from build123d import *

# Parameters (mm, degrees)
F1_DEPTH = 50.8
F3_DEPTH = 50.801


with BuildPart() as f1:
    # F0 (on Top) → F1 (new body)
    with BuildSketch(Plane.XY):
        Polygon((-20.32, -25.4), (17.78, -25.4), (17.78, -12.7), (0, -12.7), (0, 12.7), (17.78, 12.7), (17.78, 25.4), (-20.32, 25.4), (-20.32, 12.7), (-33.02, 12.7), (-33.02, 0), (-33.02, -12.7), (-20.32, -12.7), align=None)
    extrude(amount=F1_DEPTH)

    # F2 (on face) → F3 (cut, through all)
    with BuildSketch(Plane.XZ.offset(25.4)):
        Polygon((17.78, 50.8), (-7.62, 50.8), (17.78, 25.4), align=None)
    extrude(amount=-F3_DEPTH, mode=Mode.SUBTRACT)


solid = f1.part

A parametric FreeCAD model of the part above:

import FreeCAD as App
import Part
import Sketcher
from FreeCAD import Vector
Q = App.Units.Quantity


def add_polygon(sketch, points):
    """Adds a closed chain of lines whose ends are joined by coincident constraints."""
    first, n = sketch.GeometryCount, len(points)
    for a, b in zip(points, points[1:] + points[:1]):
        sketch.addGeometry(Part.LineSegment(App.Vector(*a, 0), App.Vector(*b, 0)), False)
    for i in range(n):
        sketch.addConstraint(Sketcher.Constraint("Coincident", first + i, 2, first + (i + 1) % n, 1))

doc = App.newDocument("Part")
params = doc.addObject("Spreadsheet::Sheet", "Params")
for row, (alias, value) in enumerate([
    ("sketch1_height", "1 in"),
    ("sketch1_width", "1.5 in"),
    ("sketch1_width2", "0.7 in"),
    ("sketch1_width3", "0.5 in"),
    ("pad1_length", "2 in"),
    ("sketch2_width", "1 in"),
], start=1):
    params.set(f"A{row}", alias)
    params.set(f"B{row}", "=" + value)
    params.setAlias(f"B{row}", alias)

body = doc.addObject("PartDesign::Body", "Body")

# Sketch on XY plane
sketch1 = body.newObject("Sketcher::SketchObject", "Sketch")
sketch1.AttachmentSupport = (doc.getObject("XY_Plane"), [""])
sketch1.MapMode = "FlatFace"
add_polygon(sketch1, [(-20, -25), (18, -25), (18, -13), (0, -13), (0, 13), (18, 13), (18, 25), (-20, 25), (-20, 13), (-33, 13), (-33, -13), (-20, -13)])  # lines 0-11
sketch1.addConstraint([
    Sketcher.Constraint("Horizontal", 0),
    Sketcher.Constraint("Vertical", 1),
    Sketcher.Constraint("Horizontal", 2),
    Sketcher.Constraint("Vertical", 3),
    Sketcher.Constraint("Horizontal", 4),
    Sketcher.Constraint("Vertical", 5),
    Sketcher.Constraint("Horizontal", 6),
    Sketcher.Constraint("Vertical", 7),
    Sketcher.Constraint("Horizontal", 8),
    Sketcher.Constraint("Vertical", 9),
    Sketcher.Constraint("Horizontal", 10),
    Sketcher.Constraint("Vertical", 11),
    Sketcher.Constraint("Symmetric", 2, 2, 3, 2, -1, 1),
    Sketcher.Constraint("Symmetric", 0, 2, 5, 2, -1),
    Sketcher.Constraint("Symmetric", 7, 2, 10, 2, -1),
    Sketcher.Constraint("Horizontal", 4, 2, 7, 2),
    Sketcher.Constraint("Equal", 10, 1),
    Sketcher.Constraint("DistanceY", 3, 1, 3, 2, Q("1 in")),
    Sketcher.Constraint("DistanceX", 0, 1, 0, 2, Q("1.5 in")),
    Sketcher.Constraint("DistanceX", 2, 2, 2, 1, Q("0.7 in")),
    Sketcher.Constraint("DistanceX", 8, 2, 8, 1, Q("0.5 in")),
])
sketch1.setExpression("Constraints[29]", "Params.sketch1_height")
sketch1.setExpression("Constraints[30]", "Params.sketch1_width")
sketch1.setExpression("Constraints[31]", "Params.sketch1_width2")
sketch1.setExpression("Constraints[32]", "Params.sketch1_width3")
pad1 = body.newObject("PartDesign::Pad", "Pad")
pad1.Profile = sketch1
pad1.setExpression("Length", "Params.pad1_length")

# Sketch on XZ plane
sketch2 = body.newObject("Sketcher::SketchObject", "Sketch001")
sketch2.AttachmentSupport = (doc.getObject("XZ_Plane"), [""])
sketch2.MapMode = "FlatFace"
sketch2.AttachmentOffset = App.Placement(Vector(0, 0, 1 * 25.4), App.Rotation())
add_polygon(sketch2, [(18, 51), (-8, 51), (18, 25)])  # lines 0-2
sketch2.addConstraint([
    Sketcher.Constraint("Horizontal", 0),
    Sketcher.Constraint("Vertical", 2),
    Sketcher.Constraint("Equal", 0, 2),
    Sketcher.Constraint("DistanceX", 0, 2, 0, 1, Q("1 in")),
    Sketcher.Constraint("DistanceY", -1, 1, 0, 2, Q("2 in")),
    Sketcher.Constraint("DistanceX", 0, 2, -1, 1, Q("0.3 in")),
])
sketch2.setExpression("Constraints[6]", "Params.sketch2_width")
pocket1 = body.newObject("PartDesign::Pocket", "Pocket")
pocket1.Profile = sketch2
pocket1.Type = "ThroughAll"

doc.recompute()
